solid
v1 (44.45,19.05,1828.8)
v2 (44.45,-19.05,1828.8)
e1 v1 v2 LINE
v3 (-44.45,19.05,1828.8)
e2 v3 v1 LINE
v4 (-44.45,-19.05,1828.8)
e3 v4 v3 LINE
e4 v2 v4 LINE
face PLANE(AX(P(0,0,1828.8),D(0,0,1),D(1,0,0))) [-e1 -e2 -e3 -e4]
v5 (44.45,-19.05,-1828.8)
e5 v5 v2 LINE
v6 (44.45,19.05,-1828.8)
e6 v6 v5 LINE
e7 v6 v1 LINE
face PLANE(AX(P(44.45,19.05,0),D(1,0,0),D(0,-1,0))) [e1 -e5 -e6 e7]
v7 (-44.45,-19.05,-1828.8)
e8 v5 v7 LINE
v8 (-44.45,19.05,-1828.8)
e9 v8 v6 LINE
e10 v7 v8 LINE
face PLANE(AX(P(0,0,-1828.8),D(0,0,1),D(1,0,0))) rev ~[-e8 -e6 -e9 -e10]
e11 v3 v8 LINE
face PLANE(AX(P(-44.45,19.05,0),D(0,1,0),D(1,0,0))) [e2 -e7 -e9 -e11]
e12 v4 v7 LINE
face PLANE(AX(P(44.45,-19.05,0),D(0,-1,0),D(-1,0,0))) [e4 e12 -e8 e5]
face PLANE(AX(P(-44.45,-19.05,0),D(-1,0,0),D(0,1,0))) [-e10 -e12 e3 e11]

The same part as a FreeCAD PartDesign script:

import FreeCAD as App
import Part
import Sketcher
from FreeCAD import Vector
Q = App.Units.Quantity


def add_polygon(sketch, points):
    """Adds a closed chain of lines whose ends are joined by coincident constraints."""
    first, n = sketch.GeometryCount, len(points)
    for a, b in zip(points, points[1:] + points[:1]):
        sketch.addGeometry(Part.LineSegment(App.Vector(*a, 0), App.Vector(*b, 0)), False)
    for i in range(n):
        sketch.addConstraint(Sketcher.Constraint("Coincident", first + i, 2, first + (i + 1) % n, 1))

doc = App.newDocument("Part")
body = doc.addObject("PartDesign::Body", "Body")

sketch1 = doc.addObject("Sketcher::SketchObject", "Sketch")
body.addObject(sketch1)
sketch1.AttachmentSupport = (doc.XY_Plane, [""])
sketch1.MapMode = "FlatFace"
add_polygon(sketch1, [(-44.45, -19.05), (44.45, -19.05), (44.45, 19.05), (-44.45, 19.05)])
sketch1.addConstraint([
    Sketcher.Constraint("Horizontal", 0),
    Sketcher.Constraint("Vertical", 1),
    Sketcher.Constraint("Horizontal", 2),
    Sketcher.Constraint("Vertical", 3),
    Sketcher.Constraint("Symmetric", 0, 2, 2, 2, -1, 1),
    Sketcher.Constraint("DistanceX", 0, 1, 0, 2, Q("3.5 in")),
    Sketcher.Constraint("DistanceY", 1, 1, 1, 2, Q("1.5 in")),
])
pad1 = doc.addObject("PartDesign::Pad", "Pad")
body.addObject(pad1)
pad1.Profile = sketch1
pad1.Length = Q("144 in")
pad1.Midplane = True

doc.recompute()
